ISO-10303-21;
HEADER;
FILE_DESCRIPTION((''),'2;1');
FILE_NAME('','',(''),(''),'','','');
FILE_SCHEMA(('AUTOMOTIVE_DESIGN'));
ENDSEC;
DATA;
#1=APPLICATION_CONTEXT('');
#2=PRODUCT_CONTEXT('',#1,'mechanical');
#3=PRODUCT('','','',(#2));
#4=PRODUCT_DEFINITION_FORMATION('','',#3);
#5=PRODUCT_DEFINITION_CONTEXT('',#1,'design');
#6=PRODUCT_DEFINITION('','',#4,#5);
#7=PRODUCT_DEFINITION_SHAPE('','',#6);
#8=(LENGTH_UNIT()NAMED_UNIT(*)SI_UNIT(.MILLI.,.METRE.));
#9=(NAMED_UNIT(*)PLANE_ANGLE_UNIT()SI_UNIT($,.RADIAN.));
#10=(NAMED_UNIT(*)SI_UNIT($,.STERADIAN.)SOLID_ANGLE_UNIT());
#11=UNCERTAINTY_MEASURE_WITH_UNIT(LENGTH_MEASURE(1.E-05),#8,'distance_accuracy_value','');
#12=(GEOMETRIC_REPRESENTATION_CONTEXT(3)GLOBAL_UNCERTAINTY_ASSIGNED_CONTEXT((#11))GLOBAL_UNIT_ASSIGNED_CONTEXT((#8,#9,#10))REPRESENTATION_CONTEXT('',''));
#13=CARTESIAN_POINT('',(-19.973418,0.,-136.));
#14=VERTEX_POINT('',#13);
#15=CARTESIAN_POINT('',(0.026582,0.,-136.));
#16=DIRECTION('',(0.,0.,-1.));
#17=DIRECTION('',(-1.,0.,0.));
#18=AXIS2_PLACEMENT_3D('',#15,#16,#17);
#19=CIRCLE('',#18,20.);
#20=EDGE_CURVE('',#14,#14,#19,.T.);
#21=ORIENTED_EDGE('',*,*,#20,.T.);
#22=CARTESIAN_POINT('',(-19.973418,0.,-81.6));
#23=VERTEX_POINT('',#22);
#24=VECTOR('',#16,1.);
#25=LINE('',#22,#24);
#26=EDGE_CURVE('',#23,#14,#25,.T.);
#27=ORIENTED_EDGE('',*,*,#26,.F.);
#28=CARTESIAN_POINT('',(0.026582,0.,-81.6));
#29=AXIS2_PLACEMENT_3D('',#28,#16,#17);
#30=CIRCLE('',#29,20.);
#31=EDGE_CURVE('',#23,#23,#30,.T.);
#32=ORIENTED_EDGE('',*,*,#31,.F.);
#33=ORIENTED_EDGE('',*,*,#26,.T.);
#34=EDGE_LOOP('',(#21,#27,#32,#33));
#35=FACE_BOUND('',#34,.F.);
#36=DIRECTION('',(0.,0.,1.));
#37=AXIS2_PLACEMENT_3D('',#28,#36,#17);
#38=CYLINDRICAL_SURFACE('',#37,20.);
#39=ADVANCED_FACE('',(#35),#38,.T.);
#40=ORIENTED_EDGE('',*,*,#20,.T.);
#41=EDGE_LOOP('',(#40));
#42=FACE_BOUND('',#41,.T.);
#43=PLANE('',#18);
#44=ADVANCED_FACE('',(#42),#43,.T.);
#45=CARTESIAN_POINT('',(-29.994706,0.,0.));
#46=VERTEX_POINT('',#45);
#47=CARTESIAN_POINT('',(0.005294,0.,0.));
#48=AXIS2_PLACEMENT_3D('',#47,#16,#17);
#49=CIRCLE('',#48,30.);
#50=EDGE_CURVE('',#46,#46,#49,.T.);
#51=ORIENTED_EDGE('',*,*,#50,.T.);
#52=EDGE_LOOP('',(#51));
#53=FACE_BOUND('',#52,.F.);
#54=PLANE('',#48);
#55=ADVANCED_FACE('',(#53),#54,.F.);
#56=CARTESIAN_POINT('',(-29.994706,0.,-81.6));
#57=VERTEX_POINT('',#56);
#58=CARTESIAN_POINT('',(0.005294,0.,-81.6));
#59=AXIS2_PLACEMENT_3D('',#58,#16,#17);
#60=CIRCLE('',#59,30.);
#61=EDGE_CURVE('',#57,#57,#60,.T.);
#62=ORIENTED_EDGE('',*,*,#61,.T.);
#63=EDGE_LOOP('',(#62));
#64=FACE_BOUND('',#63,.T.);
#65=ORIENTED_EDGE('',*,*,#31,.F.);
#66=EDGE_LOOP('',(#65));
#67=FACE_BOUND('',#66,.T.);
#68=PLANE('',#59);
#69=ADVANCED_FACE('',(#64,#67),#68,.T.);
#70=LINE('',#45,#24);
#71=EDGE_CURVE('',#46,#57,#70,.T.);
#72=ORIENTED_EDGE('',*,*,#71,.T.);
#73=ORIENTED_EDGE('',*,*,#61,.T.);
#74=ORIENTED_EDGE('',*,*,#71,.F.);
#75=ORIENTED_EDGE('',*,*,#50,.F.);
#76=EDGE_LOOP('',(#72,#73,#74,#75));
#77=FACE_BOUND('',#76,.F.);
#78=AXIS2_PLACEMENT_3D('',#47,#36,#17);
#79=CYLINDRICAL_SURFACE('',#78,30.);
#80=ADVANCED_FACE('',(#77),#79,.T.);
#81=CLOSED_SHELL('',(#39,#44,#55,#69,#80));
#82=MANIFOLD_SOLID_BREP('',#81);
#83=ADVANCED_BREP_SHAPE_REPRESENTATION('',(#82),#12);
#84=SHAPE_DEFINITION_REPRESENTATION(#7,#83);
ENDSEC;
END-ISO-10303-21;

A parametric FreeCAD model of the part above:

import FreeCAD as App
import Part
import Sketcher
from FreeCAD import Vector
Q = App.Units.Quantity

doc = App.newDocument("Part")
body = doc.addObject("PartDesign::Body", "Body")

# Sketch on XY plane
sketch1 = body.newObject("Sketcher::SketchObject", "Sketch")
sketch1.AttachmentSupport = (doc.getObject("XY_Plane"), [""])
sketch1.MapMode = "FlatFace"
sketch1.addGeometry(Part.Circle(Vector(0.005294, 0, 0), Vector(0, 0, 1), 30), False)
sketch1.addConstraint(Sketcher.Constraint("PointOnObject", 0, 3, -1))
sketch1.addConstraint(Sketcher.Constraint("Diameter", 0, Q("60 mm")))
sketch1.addConstraint(Sketcher.Constraint("DistanceX", -1, 1, 0, 3, Q("0.005294 mm")))
pad1 = body.newObject("PartDesign::Pad", "Pad")
pad1.Profile = sketch1
pad1.Length = 81.6
pad1.Reversed = True

# Sketch on XY plane
sketch2 = body.newObject("Sketcher::SketchObject", "Sketch001")
sketch2.AttachmentSupport = (doc.getObject("XY_Plane"), [""])
sketch2.MapMode = "FlatFace"
sketch2.AttachmentOffset = App.Placement(Vector(0, 0, -81.6), App.Rotation())
sketch2.addGeometry(Part.Circle(Vector(0.026582, 0, 0), Vector(0, 0, 1), 20), False)
sketch2.addConstraint(Sketcher.Constraint("PointOnObject", 0, 3, -1))
sketch2.addConstraint(Sketcher.Constraint("Diameter", 0, Q("40 mm")))
sketch2.addConstraint(Sketcher.Constraint("DistanceX", -1, 1, 0, 3, Q("0.026582 mm")))
pad2 = body.newObject("PartDesign::Pad", "Pad001")
pad2.Profile = sketch2
pad2.Length = 54.4
pad2.Reversed = True

doc.recompute()
